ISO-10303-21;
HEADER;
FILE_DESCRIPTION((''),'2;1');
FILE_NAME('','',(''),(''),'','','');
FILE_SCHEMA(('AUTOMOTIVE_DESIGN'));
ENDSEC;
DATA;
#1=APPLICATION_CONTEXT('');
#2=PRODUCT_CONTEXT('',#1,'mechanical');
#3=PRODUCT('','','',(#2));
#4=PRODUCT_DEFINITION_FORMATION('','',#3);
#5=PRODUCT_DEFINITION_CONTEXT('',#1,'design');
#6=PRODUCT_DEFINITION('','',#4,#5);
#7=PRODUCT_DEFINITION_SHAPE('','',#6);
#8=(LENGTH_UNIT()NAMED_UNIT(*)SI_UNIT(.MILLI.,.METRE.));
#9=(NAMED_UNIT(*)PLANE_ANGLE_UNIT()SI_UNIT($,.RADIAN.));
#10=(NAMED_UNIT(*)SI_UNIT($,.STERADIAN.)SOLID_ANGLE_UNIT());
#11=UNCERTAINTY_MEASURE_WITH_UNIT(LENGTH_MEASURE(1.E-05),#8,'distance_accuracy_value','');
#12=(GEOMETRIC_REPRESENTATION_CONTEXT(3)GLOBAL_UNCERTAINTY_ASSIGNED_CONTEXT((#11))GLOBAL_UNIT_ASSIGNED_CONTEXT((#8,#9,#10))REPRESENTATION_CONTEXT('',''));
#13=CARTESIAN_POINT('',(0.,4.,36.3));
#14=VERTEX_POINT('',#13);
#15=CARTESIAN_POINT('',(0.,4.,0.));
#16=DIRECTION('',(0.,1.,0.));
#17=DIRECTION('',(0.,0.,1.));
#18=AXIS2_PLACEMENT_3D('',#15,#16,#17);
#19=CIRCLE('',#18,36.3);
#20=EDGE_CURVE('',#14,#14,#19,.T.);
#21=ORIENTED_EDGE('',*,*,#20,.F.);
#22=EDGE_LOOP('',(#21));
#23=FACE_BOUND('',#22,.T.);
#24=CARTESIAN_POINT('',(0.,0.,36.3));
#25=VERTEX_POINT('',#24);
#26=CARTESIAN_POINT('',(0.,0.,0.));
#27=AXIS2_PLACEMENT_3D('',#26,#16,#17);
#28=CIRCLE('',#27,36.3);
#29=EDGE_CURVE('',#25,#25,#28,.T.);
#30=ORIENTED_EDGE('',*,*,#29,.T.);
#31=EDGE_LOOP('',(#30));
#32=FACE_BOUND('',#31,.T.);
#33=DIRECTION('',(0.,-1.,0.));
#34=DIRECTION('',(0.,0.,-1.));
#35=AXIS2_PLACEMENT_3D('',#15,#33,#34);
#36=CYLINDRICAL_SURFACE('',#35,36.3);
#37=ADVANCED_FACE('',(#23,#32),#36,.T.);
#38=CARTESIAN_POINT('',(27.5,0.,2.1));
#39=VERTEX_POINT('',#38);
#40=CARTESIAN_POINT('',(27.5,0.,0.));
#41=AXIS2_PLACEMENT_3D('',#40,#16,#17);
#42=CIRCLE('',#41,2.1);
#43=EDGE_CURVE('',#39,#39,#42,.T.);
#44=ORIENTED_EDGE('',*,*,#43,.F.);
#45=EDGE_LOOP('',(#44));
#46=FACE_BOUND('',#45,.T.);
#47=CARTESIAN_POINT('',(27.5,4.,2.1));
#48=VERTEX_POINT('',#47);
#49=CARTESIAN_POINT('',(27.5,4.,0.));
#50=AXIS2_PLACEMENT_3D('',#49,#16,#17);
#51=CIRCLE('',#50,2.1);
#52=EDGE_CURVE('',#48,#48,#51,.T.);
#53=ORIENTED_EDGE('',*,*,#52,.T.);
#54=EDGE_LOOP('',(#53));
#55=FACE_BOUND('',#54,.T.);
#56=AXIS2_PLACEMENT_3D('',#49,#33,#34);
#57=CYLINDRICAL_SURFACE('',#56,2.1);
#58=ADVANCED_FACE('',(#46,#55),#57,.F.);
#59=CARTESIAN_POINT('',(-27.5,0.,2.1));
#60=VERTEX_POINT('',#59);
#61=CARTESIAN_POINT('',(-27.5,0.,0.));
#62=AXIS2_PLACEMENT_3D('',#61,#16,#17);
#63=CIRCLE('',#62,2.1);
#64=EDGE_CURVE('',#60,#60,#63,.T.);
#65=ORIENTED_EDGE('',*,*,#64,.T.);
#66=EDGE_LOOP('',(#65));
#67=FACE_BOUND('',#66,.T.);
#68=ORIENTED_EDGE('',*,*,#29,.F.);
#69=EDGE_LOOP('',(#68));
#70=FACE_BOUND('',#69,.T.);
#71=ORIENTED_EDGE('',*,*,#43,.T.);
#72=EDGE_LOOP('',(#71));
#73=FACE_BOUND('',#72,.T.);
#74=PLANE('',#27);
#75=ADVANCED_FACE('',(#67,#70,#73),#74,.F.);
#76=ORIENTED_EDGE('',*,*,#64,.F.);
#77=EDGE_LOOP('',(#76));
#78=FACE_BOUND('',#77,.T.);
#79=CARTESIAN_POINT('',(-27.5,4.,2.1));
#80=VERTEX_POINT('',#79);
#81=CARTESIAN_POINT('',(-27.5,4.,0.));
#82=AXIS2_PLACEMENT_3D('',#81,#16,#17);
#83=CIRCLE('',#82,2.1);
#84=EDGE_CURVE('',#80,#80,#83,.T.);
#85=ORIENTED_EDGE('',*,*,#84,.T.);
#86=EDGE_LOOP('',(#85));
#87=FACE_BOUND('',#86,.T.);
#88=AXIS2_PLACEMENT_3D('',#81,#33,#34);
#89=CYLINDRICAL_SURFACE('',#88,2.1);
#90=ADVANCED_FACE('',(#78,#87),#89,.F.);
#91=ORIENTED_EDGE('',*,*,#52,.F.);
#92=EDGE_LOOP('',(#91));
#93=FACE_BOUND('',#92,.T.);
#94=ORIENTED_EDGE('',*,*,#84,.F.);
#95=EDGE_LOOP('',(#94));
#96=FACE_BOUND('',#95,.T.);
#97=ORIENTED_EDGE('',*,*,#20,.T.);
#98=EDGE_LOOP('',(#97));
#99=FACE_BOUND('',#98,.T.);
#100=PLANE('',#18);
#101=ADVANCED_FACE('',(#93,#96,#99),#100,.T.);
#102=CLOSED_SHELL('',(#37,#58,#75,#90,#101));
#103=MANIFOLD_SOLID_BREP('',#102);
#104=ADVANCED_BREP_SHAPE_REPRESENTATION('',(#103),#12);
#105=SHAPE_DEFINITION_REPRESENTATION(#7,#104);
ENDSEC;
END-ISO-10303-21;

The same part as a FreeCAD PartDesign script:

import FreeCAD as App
import Part
import Sketcher

V = App.Vector

doc = App.newDocument("Part")
body = doc.addObject("PartDesign::Body", "Body")

# Sketch on XZ plane
sketch1 = body.newObject("Sketcher::SketchObject", "Sketch")
sketch1.AttachmentSupport = (doc.getObject("XZ_Plane"), [""])
sketch1.MapMode = "FlatFace"
sketch1.addGeometry([
    Part.Circle(V(0, 0, 0), V(0, 0, 1), 36.3),
    Part.Circle(V(-27.5, 0, 0), V(0, 0, 1), 2.1),
    Part.Circle(V(27.5, 0, 0), V(0, 0, 1), 2.1),
], False)
sketch1.addConstraint([
    Sketcher.Constraint("Coincident", 0, 3, -1, 1),
    Sketcher.Constraint("Equal", 1, 2),
    Sketcher.Constraint("Symmetric", 1, 3, 2, 3, -1, 1),
    Sketcher.Constraint("PointOnObject", 1, 3, -1),
    Sketcher.Constraint("Diameter", 0, 72.6),
    Sketcher.Constraint("Diameter", 1, 4.2),
    Sketcher.Constraint("DistanceX", 1, 3, 2, 3, 55.0),
])
pad1 = body.newObject("PartDesign::Pad", "Pad")
pad1.Profile = sketch1
pad1.Length = 4
pad1.Reversed = True

doc.recompute()
